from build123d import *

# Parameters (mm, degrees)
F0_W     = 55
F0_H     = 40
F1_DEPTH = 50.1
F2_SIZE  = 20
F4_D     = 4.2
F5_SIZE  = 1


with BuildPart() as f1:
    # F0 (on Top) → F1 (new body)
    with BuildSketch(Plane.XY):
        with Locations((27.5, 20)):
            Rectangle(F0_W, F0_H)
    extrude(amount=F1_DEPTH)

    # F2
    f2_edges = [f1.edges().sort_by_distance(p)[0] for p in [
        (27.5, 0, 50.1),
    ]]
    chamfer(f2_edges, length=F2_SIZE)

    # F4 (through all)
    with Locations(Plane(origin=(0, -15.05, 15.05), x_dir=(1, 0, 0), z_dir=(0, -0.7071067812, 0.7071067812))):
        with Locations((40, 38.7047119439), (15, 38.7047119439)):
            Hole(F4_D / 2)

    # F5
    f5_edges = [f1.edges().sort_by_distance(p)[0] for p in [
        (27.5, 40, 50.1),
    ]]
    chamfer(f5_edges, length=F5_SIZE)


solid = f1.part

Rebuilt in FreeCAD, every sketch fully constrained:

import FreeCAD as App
import Part
import Sketcher

V = App.Vector
Q = App.Units.Quantity


def edges_at(feature, points):
    """Names of the edges that pass closest to the given points."""
    edges = feature.Shape.Edges
    near = lambda p: min(range(len(edges)), key=lambda i: edges[i].distToShape(Part.Vertex(*p))[0])
    return sorted({f"Edge{near(p) + 1}" for p in points})


def add_polygon(sketch, points):
    """Adds a closed chain of lines whose ends are joined by coincident constraints."""
    first, n = sketch.GeometryCount, len(points)
    for a, b in zip(points, points[1:] + points[:1]):
        sketch.addGeometry(Part.LineSegment(App.Vector(*a, 0), App.Vector(*b, 0)), False)
    for i in range(n):
        sketch.addConstraint(Sketcher.Constraint("Coincident", first + i, 2, first + (i + 1) % n, 1))

doc = App.newDocument("Part")
params = doc.addObject("Spreadsheet::Sheet", "Params")
for row, (alias, value) in enumerate([
    ("sketch1_width", "55 mm"),
    ("sketch1_height", "40 mm"),
    ("pad1_length", "50.1 mm"),
    ("chamfer_size", "20 mm"),
    ("sketch2_diameter", "4.2 mm"),
    ("hole_diameter", "4.2 mm"),
    ("chamfer2_size", "1 mm"),
], start=1):
    params.set(f"A{row}", alias)
    params.set(f"B{row}", "=" + value)
    params.setAlias(f"B{row}", alias)

body = doc.addObject("PartDesign::Body", "Body")

# Sketch on XY plane
sketch1 = doc.addObject("Sketcher::SketchObject", "Sketch")
body.addObject(sketch1)
sketch1.AttachmentSupport = (doc.XY_Plane, [""])
sketch1.MapMode = "FlatFace"
add_polygon(sketch1, [(0, 40), (0, 0), (55, 0), (55, 40)])  # lines 0-3
sketch1.addConstraint([
    Sketcher.Constraint("Vertical", 0),
    Sketcher.Constraint("Horizontal", 1),
    Sketcher.Constraint("Vertical", 2),
    Sketcher.Constraint("Horizontal", 3),
    Sketcher.Constraint("Coincident", 0, 2, -1, 1),
    Sketcher.Constraint("DistanceX", 1, 1, 1, 2, Q("55 mm")),
    Sketcher.Constraint("DistanceY", 0, 2, 0, 1, Q("40 mm")),
])
sketch1.setExpression("Constraints[9]", "Params.sketch1_width")
sketch1.setExpression("Constraints[10]", "Params.sketch1_height")
pad1 = doc.addObject("PartDesign::Pad", "Pad")
body.addObject(pad1)
pad1.Profile = sketch1
pad1.setExpression("Length", "Params.pad1_length")
doc.recompute()

chamfer = doc.addObject("PartDesign::Chamfer", "Chamfer")
body.addObject(chamfer)
chamfer.Base = (pad1, edges_at(pad1, [(27.5, 0, 50.1)]))
chamfer.setExpression("Size", "Params.chamfer_size")

# Sketch on an angled plane
sketch2 = doc.addObject("Sketcher::SketchObject", "Sketch001")
body.addObject(sketch2)
sketch2.Placement = App.Placement(V(0, -15.05, 15.05), App.Rotation(V(1, 0, 0), V(0, 0.707106781, 0.707106781), V(0, -0.707106781, 0.707106781), "ZXY"))
sketch2.addGeometry([
    Part.Circle(V(40, 38.7, 0), V(0, 0, 1), 2.1),
    Part.Circle(V(15, 38.7, 0), V(0, 0, 1), 2.1),
], False)
sketch2.addConstraint([
    Sketcher.Constraint("Equal", 0, 1),
    Sketcher.Constraint("Horizontal", 0, 3, 1, 3),
    Sketcher.Constraint("Diameter", 0, Q("4.2 mm")),
    Sketcher.Constraint("DistanceX", -1, 1, 0, 3, Q("40 mm")),
    Sketcher.Constraint("DistanceX", -1, 1, 1, 3, Q("15 mm")),
    Sketcher.Constraint("DistanceY", -1, 1, 0, 3, Q("38.704712 mm")),
])
sketch2.setExpression("Constraints[2]", "Params.sketch2_diameter")
doc.recompute()
hole = doc.addObject("PartDesign::Hole", "Hole")
body.addObject(hole)
hole.Profile = sketch2
hole.ThreadType = "None"
hole.setExpression("Diameter", "Params.hole_diameter")
hole.DepthType = "ThroughAll"
doc.recompute()

chamfer2 = doc.addObject("PartDesign::Chamfer", "Chamfer001")
body.addObject(chamfer2)
chamfer2.Base = (hole, edges_at(hole, [(27.5, 40, 50.1)]))
chamfer2.setExpression("Size", "Params.chamfer2_size")

doc.recompute()
